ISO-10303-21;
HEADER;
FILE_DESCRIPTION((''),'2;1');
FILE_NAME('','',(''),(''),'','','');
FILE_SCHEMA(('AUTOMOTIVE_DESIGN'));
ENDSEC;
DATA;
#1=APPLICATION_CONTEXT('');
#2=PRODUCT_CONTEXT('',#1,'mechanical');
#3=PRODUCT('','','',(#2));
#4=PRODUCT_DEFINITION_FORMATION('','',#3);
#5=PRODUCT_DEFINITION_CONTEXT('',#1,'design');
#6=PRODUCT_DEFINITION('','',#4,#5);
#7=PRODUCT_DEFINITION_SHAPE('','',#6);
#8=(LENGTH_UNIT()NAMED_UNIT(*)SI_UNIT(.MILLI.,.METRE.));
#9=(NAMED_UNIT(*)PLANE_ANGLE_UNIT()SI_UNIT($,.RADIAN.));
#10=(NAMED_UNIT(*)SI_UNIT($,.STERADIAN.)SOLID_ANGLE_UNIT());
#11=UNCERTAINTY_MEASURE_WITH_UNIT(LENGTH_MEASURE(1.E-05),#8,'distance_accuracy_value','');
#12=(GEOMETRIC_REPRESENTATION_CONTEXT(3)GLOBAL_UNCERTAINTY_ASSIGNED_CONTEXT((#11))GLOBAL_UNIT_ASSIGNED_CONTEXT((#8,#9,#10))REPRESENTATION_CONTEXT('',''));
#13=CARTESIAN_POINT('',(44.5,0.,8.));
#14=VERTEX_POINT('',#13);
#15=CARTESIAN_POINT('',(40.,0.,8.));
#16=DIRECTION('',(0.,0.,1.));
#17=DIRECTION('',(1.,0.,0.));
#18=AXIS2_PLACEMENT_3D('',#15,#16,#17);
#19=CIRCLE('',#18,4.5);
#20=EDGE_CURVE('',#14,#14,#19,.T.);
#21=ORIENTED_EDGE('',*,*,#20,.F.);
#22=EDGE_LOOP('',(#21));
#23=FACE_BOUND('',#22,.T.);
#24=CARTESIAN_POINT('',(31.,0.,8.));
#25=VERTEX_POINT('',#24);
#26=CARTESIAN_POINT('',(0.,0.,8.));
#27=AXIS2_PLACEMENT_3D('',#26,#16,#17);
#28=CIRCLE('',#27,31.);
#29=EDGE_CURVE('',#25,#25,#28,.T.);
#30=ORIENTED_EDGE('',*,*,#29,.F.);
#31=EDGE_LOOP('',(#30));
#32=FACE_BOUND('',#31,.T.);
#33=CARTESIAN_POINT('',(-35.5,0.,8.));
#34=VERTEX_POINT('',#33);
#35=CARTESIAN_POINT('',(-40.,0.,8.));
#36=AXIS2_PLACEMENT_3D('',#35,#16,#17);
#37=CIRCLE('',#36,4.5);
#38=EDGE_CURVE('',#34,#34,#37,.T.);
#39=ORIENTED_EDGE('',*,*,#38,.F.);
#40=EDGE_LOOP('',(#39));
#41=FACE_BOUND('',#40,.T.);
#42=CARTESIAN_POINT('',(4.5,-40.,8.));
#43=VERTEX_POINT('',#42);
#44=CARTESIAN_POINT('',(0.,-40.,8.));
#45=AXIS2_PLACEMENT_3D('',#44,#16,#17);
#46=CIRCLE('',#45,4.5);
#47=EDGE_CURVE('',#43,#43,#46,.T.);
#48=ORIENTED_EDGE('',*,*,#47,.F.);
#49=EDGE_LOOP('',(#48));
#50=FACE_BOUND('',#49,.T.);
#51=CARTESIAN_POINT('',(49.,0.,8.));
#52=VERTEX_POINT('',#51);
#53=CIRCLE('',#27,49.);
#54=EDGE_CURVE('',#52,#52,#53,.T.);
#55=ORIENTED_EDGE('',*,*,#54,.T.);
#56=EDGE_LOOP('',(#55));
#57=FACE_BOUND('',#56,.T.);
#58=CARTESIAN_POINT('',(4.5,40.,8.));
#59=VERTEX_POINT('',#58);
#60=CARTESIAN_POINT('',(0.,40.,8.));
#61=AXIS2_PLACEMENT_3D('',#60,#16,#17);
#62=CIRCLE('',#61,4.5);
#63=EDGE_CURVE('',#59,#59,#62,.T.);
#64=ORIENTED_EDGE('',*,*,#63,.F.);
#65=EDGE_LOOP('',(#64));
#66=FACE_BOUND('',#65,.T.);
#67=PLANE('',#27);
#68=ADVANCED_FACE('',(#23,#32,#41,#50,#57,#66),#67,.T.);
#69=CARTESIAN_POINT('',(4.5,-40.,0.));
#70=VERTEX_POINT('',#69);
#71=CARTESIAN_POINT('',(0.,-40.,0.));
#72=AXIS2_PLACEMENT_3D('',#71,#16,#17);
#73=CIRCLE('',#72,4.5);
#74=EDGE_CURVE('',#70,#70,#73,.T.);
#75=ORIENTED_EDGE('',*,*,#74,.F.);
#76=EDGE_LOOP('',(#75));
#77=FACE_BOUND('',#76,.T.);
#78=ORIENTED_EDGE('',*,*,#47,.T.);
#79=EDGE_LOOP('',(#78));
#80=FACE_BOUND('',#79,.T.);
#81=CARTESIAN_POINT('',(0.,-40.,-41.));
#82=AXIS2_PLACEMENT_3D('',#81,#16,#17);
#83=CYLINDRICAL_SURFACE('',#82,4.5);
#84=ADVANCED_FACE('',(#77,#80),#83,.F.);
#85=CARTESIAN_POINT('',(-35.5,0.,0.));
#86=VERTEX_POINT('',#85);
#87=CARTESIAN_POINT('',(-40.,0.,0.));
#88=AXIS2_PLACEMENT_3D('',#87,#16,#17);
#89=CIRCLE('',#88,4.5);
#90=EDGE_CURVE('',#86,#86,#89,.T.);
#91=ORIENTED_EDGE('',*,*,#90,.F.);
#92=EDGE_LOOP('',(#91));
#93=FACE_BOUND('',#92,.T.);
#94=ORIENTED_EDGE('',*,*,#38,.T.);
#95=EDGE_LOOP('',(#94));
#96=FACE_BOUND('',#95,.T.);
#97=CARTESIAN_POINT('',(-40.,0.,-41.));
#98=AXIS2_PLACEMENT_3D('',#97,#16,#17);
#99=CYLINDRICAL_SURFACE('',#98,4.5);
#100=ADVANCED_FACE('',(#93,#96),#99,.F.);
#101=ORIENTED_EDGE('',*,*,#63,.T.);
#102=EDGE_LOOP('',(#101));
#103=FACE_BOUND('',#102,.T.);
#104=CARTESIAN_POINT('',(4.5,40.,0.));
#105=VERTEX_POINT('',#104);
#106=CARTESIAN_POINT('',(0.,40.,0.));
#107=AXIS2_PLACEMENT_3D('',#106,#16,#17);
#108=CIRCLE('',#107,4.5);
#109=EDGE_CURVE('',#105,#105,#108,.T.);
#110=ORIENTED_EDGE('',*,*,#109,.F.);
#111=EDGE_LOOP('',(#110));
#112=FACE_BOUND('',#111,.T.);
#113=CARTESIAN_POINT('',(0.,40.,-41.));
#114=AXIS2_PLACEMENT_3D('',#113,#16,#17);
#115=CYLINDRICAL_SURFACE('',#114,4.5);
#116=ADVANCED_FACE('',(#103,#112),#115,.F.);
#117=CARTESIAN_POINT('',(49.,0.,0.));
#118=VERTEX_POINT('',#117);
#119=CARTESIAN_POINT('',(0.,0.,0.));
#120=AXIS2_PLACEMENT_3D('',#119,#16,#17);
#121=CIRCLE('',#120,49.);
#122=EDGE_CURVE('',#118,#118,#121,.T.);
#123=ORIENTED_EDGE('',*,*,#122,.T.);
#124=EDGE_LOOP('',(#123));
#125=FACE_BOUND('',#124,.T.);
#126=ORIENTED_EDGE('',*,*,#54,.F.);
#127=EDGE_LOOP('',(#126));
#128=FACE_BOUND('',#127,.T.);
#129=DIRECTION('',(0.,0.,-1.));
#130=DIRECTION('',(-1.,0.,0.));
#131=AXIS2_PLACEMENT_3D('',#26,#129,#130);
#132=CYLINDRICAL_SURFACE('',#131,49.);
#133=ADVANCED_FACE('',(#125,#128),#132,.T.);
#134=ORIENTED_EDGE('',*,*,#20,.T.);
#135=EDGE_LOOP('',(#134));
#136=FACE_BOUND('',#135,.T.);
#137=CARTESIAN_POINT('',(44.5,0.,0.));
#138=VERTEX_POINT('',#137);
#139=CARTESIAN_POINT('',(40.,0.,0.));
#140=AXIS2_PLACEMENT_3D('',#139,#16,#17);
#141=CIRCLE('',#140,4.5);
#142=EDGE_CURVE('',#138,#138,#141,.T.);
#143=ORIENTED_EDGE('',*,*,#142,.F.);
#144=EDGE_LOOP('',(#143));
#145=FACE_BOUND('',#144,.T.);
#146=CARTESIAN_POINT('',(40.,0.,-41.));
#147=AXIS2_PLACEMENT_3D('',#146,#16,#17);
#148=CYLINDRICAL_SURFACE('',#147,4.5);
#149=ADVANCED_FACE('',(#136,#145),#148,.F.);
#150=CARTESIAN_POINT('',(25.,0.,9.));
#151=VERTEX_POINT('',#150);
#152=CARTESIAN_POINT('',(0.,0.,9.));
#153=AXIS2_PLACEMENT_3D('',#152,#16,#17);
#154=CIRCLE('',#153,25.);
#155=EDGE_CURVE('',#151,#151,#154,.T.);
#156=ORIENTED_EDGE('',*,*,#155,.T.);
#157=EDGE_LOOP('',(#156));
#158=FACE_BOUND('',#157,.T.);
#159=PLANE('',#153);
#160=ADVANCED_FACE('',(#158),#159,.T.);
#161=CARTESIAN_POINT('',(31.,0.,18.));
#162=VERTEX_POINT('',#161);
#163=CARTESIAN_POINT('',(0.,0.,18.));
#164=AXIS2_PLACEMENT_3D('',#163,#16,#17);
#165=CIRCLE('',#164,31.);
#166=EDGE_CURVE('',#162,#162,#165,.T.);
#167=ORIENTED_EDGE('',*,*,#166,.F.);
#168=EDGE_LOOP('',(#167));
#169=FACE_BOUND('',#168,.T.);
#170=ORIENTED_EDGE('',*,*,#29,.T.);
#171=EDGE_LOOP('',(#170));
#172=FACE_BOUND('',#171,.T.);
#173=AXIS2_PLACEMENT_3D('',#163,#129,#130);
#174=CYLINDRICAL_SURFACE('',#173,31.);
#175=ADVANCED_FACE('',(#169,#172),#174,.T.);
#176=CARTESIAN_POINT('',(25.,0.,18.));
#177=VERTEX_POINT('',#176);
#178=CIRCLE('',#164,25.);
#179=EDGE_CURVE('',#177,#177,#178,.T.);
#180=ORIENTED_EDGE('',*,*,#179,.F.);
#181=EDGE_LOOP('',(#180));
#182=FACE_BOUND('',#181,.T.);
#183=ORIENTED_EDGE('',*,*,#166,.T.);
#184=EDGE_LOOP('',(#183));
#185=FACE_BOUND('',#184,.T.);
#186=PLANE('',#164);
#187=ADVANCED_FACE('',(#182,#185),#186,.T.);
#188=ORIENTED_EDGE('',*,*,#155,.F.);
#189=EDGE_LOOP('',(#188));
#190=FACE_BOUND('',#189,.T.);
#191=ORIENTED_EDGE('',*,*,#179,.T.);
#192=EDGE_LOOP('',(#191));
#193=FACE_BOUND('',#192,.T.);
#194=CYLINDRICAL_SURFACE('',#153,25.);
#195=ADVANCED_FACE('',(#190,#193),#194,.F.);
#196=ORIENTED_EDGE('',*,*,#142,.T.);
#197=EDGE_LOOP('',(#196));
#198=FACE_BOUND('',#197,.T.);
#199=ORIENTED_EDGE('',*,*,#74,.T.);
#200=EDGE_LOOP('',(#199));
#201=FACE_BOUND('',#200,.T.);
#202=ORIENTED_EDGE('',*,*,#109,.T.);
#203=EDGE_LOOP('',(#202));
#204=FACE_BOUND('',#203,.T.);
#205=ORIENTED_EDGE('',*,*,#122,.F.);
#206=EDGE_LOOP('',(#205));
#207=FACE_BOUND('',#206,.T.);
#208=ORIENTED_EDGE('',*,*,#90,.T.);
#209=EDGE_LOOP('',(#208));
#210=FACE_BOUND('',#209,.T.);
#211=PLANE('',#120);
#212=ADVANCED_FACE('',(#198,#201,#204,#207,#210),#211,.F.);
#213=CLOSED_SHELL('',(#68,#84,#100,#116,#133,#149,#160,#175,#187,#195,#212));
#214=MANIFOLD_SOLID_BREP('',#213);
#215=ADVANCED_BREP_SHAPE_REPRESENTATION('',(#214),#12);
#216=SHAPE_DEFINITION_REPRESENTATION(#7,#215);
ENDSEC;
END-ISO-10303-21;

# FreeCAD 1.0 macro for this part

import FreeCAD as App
import Part
import Sketcher

V = App.Vector
Q = App.Units.Quantity

doc = App.newDocument("Part")
body = doc.addObject("PartDesign::Body", "Body")

sketch1 = body.newObject("Sketcher::SketchObject", "Sketch")
sketch1.AttachmentSupport = (doc.getObject("XY_Plane"), [""])
sketch1.MapMode = "FlatFace"
sketch1.addGeometry(Part.Circle(V(0, 0, 0), V(0, 0, 1), 49), False)
sketch1.addConstraint([
    Sketcher.Constraint("Coincident", 0, 3, -1, 1),
    Sketcher.Constraint("Diameter", 0, Q("98 mm")),
])
pad1 = body.newObject("PartDesign::Pad", "Pad")
pad1.Profile = sketch1
pad1.Length = 8

sketch2 = body.newObject("Sketcher::SketchObject", "Sketch001")
sketch2.AttachmentSupport = (doc.getObject("XY_Plane"), [""])
sketch2.MapMode = "FlatFace"
sketch2.AttachmentOffset = App.Placement(V(0, 0, 8), App.Rotation())
sketch2.addGeometry(Part.Circle(V(0, 0, 0), V(0, 0, 1), 31), False)
sketch2.addConstraint([
    Sketcher.Constraint("Coincident", 0, 3, -1, 1),
    Sketcher.Constraint("Diameter", 0, Q("62 mm")),
])
pad2 = body.newObject("PartDesign::Pad", "Pad001")
pad2.Profile = sketch2
pad2.Length = 10

sketch3 = body.newObject("Sketcher::SketchObject", "Sketch002")
sketch3.AttachmentSupport = (doc.getObject("XY_Plane"), [""])
sketch3.MapMode = "FlatFace"
sketch3.AttachmentOffset = App.Placement(V(0, 0, 18), App.Rotation())
sketch3.addGeometry(Part.Circle(V(0, 0, 0), V(0, 0, 1), 25), False)
sketch3.addConstraint([
    Sketcher.Constraint("Coincident", 0, 3, -1, 1),
    Sketcher.Constraint("Diameter", 0, Q("50 mm")),
])
pocket1 = body.newObject("PartDesign::Pocket", "Pocket")
pocket1.Profile = sketch3
pocket1.Length = 9

sketch4 = body.newObject("Sketcher::SketchObject", "Sketch003")
sketch4.AttachmentSupport = (doc.getObject("XY_Plane"), [""])
sketch4.MapMode = "FlatFace"
sketch4.AttachmentOffset = App.Placement(V(0, 0, 8), App.Rotation())
sketch4.addGeometry([
    Part.Circle(V(0, 40, 0), V(0, 0, 1), 4.5),
    Part.Circle(V(40, 0, 0), V(0, 0, 1), 4.5),
    Part.Circle(V(0, -40, 0), V(0, 0, 1), 4.5),
    Part.Circle(V(-40, 0, 0), V(0, 0, 1), 4.5),
], False)
sketch4.addConstraint([
    Sketcher.Constraint("Equal", 0, 1),
    Sketcher.Constraint("Equal", 1, 2),
    Sketcher.Constraint("Equal", 2, 3),
    Sketcher.Constraint("Symmetric", 0, 3, 2, 3, -1, 1),
    Sketcher.Constraint("Symmetric", 1, 3, 3, 3, -1, 1),
    Sketcher.Constraint("PointOnObject", 0, 3, -2),
    Sketcher.Constraint("PointOnObject", 1, 3, -1),
    Sketcher.Constraint("Diameter", 0, Q("9 mm")),
    Sketcher.Constraint("DistanceY", -1, 1, 0, 3, Q("40 mm")),
    Sketcher.Constraint("DistanceX", -1, 1, 1, 3, Q("40 mm")),
])
pocket2 = body.newObject("PartDesign::Pocket", "Pocket001")
pocket2.Profile = sketch4
pocket2.Length = 49

doc.recompute()
